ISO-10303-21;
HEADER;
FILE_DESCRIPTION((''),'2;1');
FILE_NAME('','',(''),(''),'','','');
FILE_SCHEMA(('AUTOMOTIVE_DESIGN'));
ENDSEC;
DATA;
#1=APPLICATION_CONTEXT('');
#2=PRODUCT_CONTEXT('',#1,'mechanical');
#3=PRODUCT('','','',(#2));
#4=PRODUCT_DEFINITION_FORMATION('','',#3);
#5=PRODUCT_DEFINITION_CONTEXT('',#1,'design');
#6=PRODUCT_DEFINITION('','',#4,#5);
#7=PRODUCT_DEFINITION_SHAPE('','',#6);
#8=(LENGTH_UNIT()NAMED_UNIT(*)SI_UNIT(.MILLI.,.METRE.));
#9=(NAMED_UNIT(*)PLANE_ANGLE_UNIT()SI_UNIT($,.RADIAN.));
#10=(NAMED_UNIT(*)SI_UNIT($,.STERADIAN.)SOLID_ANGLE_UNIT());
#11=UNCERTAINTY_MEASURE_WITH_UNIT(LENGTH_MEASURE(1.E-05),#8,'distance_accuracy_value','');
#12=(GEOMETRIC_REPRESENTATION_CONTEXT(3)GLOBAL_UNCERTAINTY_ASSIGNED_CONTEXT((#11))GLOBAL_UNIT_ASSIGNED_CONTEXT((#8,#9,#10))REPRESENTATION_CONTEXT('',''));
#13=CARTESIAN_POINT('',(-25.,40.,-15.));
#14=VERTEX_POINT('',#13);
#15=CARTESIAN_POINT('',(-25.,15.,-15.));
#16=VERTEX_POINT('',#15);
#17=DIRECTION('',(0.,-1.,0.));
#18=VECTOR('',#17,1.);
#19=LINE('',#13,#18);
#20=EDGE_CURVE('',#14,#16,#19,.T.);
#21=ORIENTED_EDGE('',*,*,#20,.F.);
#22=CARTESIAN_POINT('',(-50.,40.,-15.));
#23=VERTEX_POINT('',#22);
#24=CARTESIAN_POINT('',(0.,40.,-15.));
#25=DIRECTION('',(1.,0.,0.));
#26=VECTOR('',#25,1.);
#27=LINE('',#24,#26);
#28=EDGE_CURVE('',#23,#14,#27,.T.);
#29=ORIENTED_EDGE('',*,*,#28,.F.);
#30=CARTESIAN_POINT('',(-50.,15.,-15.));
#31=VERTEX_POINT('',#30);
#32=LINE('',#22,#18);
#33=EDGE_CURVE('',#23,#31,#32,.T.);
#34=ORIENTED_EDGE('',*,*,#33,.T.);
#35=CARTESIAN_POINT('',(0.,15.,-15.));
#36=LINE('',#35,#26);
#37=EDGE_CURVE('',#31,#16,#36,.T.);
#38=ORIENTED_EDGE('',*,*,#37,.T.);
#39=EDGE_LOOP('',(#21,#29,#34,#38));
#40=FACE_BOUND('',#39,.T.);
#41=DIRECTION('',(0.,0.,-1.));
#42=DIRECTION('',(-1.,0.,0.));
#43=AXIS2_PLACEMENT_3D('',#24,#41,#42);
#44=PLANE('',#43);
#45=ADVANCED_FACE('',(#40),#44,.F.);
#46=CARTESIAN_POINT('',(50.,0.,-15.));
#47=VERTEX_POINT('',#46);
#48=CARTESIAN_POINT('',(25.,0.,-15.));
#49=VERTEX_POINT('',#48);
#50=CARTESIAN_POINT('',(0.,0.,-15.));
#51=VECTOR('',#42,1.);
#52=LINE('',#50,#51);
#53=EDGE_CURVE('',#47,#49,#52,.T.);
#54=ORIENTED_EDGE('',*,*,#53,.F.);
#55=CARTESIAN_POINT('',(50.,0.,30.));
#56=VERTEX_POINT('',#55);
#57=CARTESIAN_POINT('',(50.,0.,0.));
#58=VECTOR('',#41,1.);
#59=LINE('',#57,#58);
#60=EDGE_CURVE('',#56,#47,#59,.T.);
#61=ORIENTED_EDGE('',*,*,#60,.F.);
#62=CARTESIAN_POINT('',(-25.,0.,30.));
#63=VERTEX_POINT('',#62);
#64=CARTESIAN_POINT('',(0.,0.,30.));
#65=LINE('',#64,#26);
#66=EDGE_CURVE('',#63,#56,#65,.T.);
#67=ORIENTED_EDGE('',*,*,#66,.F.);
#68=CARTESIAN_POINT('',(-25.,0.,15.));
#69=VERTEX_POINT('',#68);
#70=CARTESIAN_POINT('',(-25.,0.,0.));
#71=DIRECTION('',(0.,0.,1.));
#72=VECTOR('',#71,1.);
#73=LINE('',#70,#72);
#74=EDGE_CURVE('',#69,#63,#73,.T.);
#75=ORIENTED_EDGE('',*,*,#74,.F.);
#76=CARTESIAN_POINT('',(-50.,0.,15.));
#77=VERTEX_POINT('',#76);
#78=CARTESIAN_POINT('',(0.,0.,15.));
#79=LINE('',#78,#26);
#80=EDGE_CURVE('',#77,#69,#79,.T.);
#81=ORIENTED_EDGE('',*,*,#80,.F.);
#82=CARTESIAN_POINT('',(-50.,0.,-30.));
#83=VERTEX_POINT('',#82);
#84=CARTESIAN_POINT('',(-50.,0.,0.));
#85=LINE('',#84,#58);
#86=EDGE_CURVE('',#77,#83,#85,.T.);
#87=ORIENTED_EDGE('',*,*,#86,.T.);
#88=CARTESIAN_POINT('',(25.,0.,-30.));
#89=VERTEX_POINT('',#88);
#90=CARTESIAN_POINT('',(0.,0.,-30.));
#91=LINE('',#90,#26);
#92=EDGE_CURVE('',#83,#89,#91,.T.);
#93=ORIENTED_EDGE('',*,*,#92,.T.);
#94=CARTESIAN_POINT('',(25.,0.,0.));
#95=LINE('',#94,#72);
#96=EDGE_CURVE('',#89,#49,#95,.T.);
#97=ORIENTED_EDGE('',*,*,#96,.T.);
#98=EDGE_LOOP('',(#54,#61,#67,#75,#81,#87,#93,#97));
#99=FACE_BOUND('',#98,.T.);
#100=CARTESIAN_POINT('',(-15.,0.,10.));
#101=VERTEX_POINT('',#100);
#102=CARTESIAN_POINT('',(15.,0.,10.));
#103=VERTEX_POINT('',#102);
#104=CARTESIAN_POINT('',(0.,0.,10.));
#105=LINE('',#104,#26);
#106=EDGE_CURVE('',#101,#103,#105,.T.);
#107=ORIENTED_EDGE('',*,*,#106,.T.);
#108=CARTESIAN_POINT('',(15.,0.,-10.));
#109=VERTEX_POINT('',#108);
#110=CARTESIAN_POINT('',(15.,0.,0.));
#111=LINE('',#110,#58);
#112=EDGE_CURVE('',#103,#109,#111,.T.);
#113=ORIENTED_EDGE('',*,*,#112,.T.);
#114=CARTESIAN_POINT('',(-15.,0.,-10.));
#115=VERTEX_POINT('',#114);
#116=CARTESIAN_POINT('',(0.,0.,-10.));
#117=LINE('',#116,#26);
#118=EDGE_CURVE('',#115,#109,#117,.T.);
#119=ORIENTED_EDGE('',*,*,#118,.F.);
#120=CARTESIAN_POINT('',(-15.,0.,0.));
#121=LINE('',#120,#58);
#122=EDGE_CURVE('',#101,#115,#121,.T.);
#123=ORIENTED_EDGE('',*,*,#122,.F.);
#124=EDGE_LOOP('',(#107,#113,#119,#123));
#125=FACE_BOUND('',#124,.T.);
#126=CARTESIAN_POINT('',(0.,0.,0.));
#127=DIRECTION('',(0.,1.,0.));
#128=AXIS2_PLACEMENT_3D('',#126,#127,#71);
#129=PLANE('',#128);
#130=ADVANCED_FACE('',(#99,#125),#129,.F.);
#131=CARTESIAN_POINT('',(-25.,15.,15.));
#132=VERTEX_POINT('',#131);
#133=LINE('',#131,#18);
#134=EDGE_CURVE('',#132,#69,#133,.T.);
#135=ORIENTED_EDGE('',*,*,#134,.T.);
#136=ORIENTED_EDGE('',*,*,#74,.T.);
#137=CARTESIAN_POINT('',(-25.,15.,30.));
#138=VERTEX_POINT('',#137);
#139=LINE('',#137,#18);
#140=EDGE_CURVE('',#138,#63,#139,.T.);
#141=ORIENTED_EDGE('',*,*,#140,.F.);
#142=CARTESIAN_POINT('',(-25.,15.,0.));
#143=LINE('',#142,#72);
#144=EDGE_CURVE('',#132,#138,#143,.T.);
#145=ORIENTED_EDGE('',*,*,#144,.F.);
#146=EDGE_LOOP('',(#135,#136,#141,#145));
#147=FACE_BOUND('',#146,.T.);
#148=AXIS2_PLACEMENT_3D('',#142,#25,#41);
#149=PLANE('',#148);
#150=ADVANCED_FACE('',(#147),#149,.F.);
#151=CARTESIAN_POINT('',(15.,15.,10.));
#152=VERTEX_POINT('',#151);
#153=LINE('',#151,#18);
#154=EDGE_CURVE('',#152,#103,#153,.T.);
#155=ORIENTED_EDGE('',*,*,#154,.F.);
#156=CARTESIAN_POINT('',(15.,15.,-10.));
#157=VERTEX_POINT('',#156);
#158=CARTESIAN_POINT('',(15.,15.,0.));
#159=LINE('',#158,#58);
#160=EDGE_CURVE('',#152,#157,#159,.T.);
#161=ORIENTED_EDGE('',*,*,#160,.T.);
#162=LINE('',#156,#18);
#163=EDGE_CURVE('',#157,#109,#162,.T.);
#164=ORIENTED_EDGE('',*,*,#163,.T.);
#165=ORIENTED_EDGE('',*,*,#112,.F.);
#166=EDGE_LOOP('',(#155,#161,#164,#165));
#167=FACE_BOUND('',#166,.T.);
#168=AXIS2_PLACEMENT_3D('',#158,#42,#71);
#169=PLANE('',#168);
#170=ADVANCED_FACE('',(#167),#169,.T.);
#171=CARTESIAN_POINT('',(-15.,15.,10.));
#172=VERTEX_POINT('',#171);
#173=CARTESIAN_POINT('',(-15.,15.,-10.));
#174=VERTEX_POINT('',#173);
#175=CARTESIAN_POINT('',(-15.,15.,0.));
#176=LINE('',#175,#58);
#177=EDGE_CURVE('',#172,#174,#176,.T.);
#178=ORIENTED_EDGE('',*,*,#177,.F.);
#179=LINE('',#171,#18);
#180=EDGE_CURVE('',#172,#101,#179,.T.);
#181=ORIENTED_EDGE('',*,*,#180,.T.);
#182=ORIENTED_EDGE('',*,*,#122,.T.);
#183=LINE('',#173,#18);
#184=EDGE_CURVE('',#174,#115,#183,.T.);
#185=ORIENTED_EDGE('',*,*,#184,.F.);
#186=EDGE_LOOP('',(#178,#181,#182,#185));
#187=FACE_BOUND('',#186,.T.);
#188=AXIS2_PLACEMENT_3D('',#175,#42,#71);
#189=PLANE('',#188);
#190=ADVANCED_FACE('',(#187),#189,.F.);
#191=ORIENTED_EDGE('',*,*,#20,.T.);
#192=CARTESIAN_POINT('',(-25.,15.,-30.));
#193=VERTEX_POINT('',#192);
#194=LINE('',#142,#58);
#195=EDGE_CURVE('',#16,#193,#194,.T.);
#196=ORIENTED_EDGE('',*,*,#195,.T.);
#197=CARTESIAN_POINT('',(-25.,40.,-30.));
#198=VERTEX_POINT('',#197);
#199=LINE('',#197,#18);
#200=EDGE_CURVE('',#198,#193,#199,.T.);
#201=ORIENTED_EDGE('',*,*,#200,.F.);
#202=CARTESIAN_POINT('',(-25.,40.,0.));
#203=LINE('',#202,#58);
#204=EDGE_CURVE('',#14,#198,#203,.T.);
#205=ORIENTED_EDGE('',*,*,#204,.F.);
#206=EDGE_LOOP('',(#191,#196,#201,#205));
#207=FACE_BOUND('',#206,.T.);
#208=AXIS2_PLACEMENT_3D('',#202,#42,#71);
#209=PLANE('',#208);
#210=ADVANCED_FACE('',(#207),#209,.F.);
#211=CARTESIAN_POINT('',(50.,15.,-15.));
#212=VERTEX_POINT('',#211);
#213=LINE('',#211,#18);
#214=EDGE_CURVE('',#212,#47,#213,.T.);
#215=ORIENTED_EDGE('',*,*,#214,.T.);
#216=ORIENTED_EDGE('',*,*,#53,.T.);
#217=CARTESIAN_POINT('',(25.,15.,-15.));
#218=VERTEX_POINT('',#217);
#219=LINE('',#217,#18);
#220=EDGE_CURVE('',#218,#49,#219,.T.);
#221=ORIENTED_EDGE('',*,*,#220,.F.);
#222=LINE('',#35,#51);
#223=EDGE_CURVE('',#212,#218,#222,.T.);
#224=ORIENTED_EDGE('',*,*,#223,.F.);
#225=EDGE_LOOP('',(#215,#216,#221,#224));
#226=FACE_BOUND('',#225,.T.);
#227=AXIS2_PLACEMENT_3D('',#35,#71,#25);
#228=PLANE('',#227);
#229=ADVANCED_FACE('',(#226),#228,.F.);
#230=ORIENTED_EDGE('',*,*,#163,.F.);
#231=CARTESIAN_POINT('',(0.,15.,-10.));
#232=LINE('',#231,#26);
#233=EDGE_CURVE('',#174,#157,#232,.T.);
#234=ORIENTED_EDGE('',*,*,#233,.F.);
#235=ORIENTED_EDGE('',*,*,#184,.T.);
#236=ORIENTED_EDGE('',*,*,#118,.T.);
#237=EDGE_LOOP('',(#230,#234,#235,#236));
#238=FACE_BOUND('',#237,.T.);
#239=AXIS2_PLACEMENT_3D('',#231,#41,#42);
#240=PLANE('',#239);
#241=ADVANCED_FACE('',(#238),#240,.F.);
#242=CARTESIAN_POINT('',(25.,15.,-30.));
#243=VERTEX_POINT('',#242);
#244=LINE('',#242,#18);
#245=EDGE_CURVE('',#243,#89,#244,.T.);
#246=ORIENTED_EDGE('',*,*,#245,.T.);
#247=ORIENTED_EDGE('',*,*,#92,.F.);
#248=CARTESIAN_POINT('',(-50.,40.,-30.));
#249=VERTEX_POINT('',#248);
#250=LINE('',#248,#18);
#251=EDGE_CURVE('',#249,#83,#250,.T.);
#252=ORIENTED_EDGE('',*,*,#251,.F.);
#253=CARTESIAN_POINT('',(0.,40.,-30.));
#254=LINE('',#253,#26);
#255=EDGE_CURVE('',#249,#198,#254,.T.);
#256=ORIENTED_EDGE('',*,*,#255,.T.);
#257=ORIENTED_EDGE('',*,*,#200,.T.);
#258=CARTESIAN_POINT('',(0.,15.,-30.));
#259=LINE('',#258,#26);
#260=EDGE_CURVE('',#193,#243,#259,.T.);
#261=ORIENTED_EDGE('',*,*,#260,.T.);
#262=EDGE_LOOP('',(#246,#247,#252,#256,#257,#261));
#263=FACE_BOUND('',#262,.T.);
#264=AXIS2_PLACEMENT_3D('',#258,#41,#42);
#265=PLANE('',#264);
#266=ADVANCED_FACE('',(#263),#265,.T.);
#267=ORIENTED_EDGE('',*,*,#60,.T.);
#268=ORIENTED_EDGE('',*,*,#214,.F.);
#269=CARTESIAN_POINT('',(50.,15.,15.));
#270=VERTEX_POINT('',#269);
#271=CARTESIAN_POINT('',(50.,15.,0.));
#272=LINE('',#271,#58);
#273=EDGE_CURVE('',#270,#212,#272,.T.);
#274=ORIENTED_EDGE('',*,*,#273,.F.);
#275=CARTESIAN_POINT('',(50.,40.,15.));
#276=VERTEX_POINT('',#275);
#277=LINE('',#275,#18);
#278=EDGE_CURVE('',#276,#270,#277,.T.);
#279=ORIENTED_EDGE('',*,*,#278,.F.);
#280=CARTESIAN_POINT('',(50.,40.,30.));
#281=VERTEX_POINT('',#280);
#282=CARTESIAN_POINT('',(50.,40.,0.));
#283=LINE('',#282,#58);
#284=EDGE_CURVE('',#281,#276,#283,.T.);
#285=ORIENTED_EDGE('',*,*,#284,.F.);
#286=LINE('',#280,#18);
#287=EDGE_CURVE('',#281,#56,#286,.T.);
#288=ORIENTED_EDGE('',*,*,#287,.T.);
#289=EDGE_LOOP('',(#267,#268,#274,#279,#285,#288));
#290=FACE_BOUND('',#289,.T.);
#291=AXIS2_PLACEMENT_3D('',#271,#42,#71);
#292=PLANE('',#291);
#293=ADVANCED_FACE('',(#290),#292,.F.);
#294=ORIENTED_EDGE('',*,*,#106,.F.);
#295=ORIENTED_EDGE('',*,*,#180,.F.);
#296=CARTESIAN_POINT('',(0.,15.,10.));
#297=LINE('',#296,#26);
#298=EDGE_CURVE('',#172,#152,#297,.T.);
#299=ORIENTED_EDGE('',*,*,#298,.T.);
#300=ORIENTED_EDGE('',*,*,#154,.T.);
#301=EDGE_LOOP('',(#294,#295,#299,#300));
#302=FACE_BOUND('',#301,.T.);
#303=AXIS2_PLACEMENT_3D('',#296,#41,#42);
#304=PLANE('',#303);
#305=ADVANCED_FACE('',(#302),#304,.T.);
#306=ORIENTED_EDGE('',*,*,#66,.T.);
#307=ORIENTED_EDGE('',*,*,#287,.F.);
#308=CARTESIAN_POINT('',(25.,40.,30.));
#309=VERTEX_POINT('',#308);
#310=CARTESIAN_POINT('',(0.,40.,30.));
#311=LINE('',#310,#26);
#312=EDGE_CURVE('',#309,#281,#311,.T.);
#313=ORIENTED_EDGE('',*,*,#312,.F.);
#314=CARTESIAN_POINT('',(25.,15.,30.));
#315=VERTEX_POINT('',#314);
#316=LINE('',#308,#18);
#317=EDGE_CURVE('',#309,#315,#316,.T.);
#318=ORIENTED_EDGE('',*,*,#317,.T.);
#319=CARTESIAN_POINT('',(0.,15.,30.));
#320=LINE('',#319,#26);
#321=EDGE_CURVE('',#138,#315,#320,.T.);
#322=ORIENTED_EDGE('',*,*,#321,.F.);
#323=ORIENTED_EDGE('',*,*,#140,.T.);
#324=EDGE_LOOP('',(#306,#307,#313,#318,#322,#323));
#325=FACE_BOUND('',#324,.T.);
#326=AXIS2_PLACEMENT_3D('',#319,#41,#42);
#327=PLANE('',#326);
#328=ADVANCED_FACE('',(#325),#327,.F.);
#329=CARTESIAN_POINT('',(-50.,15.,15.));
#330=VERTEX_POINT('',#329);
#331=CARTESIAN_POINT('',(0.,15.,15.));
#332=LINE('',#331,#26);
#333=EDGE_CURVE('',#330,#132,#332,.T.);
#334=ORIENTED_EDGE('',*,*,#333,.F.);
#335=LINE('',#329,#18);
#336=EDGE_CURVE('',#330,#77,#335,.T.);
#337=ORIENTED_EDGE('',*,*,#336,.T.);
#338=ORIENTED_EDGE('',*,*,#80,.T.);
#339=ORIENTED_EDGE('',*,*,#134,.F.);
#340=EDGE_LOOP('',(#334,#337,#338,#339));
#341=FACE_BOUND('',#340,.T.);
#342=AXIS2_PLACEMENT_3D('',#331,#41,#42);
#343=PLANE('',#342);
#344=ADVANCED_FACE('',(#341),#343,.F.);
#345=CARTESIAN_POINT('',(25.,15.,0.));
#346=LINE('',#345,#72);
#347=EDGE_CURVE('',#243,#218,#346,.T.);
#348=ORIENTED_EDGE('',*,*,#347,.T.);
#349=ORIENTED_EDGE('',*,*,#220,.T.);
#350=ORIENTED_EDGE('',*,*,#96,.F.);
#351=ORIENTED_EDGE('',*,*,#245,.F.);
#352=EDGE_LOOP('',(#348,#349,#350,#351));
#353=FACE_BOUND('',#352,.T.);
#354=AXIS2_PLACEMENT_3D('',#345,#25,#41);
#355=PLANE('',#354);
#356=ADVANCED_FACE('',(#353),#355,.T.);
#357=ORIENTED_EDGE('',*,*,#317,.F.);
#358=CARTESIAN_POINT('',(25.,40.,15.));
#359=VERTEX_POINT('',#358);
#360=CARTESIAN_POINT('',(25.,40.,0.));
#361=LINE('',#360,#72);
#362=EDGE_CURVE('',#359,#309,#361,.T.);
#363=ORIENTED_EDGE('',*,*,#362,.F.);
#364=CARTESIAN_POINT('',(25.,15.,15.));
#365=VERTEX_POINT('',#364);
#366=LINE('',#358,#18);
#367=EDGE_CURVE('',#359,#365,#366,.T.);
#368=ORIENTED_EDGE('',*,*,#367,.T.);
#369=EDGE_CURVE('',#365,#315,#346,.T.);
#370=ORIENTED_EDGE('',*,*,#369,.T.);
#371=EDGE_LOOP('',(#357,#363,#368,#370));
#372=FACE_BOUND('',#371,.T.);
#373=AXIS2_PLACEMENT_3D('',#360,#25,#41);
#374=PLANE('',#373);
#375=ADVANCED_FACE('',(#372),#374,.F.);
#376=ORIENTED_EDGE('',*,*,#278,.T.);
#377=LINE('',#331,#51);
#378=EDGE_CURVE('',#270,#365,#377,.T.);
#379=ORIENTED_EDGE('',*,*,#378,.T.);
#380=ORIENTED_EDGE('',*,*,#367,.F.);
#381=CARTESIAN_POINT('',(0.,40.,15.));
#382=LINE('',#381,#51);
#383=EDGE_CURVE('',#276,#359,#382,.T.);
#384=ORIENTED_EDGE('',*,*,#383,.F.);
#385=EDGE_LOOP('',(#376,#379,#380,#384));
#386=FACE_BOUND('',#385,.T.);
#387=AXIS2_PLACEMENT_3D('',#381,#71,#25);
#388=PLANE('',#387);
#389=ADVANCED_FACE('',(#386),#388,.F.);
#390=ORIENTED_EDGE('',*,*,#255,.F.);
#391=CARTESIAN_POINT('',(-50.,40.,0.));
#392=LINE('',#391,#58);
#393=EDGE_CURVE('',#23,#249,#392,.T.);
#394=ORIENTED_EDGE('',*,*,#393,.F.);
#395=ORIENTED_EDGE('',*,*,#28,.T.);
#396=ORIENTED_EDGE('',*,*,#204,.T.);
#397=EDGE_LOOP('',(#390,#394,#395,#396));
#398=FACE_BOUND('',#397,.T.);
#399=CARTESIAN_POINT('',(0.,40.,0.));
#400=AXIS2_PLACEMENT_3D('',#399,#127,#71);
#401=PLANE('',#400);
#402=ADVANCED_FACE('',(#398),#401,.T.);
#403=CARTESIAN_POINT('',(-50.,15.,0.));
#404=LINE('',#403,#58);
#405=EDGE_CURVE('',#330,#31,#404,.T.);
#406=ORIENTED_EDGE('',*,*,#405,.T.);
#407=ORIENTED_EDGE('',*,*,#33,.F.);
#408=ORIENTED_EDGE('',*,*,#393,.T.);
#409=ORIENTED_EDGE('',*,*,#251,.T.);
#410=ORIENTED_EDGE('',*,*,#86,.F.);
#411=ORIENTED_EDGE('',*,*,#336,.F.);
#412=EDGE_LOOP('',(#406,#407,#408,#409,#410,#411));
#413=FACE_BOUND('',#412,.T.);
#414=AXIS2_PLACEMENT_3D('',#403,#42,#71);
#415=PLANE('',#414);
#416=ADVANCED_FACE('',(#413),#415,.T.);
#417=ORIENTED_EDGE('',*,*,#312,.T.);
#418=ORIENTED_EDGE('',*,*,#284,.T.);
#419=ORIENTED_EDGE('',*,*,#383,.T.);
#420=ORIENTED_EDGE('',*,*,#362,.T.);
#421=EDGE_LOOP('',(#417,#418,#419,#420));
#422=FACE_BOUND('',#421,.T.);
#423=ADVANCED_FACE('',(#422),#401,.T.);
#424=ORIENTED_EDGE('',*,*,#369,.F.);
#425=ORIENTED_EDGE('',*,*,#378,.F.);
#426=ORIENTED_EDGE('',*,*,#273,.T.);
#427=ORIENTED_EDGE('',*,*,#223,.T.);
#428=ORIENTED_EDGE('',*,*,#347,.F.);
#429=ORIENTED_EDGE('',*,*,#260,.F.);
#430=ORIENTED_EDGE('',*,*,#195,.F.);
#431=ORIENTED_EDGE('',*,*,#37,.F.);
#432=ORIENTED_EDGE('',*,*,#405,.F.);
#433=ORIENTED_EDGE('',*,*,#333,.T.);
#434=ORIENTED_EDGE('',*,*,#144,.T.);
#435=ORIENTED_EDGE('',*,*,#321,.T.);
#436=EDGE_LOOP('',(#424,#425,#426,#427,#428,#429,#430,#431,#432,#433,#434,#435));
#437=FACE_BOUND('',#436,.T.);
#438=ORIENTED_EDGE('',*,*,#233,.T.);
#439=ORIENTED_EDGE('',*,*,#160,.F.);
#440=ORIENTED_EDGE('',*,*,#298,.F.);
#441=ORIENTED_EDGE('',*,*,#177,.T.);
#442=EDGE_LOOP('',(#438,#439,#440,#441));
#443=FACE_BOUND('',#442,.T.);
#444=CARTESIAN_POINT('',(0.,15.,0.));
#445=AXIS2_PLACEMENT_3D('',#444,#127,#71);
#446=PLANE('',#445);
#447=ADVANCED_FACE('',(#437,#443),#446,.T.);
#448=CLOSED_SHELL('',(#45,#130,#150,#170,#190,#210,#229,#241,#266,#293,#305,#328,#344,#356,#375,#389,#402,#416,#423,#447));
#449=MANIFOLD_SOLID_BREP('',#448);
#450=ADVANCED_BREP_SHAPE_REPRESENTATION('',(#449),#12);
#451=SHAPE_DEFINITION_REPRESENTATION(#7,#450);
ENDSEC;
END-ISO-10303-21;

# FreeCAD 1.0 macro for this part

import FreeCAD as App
import Part
import Sketcher

V = App.Vector

doc = App.newDocument("Part")
body = doc.addObject("PartDesign::Body", "Body")

sketch1 = doc.addObject("Sketcher::SketchObject", "Sketch")
body.addObject(sketch1)
sketch1.AttachmentSupport = (doc.XZ_Plane, [""])
sketch1.MapMode = "FlatFace"
sketch1.addGeometry([
    Part.LineSegment(V(-25, 15, 0), V(-25, 30, 0)),
    Part.LineSegment(V(-25, 30, 0), V(25, 30, 0)),
    Part.LineSegment(V(25, 30, 0), V(25, 15, 0)),
    Part.LineSegment(V(25, 15, 0), V(50, 15, 0)),
    Part.LineSegment(V(50, 15, 0), V(50, -15, 0)),
    Part.LineSegment(V(50, -15, 0), V(25, -15, 0)),
    Part.LineSegment(V(25, -15, 0), V(25, -30, 0)),
    Part.LineSegment(V(25, -30, 0), V(-25, -30, 0)),
    Part.LineSegment(V(-25, -30, 0), V(-25, -15, 0)),
    Part.LineSegment(V(-25, -15, 0), V(-50, -15, 0)),
    Part.LineSegment(V(-50, -15, 0), V(-50, 15, 0)),
    Part.LineSegment(V(-50, 15, 0), V(-25, 15, 0)),
    Part.LineSegment(V(15, 10, 0), V(-15, 10, 0)),
    Part.LineSegment(V(-15, 10, 0), V(-15, -10, 0)),
    Part.LineSegment(V(-15, -10, 0), V(15, -10, 0)),
    Part.LineSegment(V(15, -10, 0), V(15, 10, 0)),
], False)
sketch1.addConstraint([
    Sketcher.Constraint("Coincident", 0, 2, 1, 1),
    Sketcher.Constraint("Coincident", 1, 2, 2, 1),
    Sketcher.Constraint("Coincident", 2, 2, 3, 1),
    Sketcher.Constraint("Coincident", 3, 2, 4, 1),
    Sketcher.Constraint("Coincident", 4, 2, 5, 1),
    Sketcher.Constraint("Coincident", 5, 2, 6, 1),
    Sketcher.Constraint("Coincident", 6, 2, 7, 1),
    Sketcher.Constraint("Coincident", 7, 2, 8, 1),
    Sketcher.Constraint("Coincident", 8, 2, 9, 1),
    Sketcher.Constraint("Coincident", 9, 2, 10, 1),
    Sketcher.Constraint("Coincident", 10, 2, 11, 1),
    Sketcher.Constraint("Coincident", 11, 2, 0, 1),
    Sketcher.Constraint("Coincident", 12, 2, 13, 1),
    Sketcher.Constraint("Coincident", 13, 2, 14, 1),
    Sketcher.Constraint("Coincident", 14, 2, 15, 1),
    Sketcher.Constraint("Coincident", 15, 2, 12, 1),
    Sketcher.Constraint("Vertical", 0),
    Sketcher.Constraint("Horizontal", 1),
    Sketcher.Constraint("Vertical", 2),
    Sketcher.Constraint("Horizontal", 3),
    Sketcher.Constraint("Vertical", 4),
    Sketcher.Constraint("Horizontal", 5),
    Sketcher.Constraint("Vertical", 6),
    Sketcher.Constraint("Horizontal", 7),
    Sketcher.Constraint("Vertical", 8),
    Sketcher.Constraint("Horizontal", 9),
    Sketcher.Constraint("Vertical", 10),
    Sketcher.Constraint("Horizontal", 11),
    Sketcher.Constraint("Horizontal", 12),
    Sketcher.Constraint("Vertical", 13),
    Sketcher.Constraint("Horizontal", 14),
    Sketcher.Constraint("Vertical", 15),
    Sketcher.Constraint("Symmetric", 0, 2, 6, 2, -1, 1),
    Sketcher.Constraint("Symmetric", 2, 2, 8, 2, -1, 1),
    Sketcher.Constraint("Symmetric", 4, 2, 10, 2, -1, 1),
    Sketcher.Constraint("Symmetric", 12, 2, 14, 2, -1, 1),
    Sketcher.Constraint("Symmetric", 5, 2, 8, 2, -2),
    Sketcher.Constraint("Equal", 14, 4),
    Sketcher.Constraint("DistanceX", 1, 1, 1, 2, 50.0),
    Sketcher.Constraint("DistanceX", 3, 1, 3, 2, 25.0),
    Sketcher.Constraint("DistanceX", 12, 2, 12, 1, 30.0),
    Sketcher.Constraint("DistanceY", 0, 1, 0, 2, 15.0),
    Sketcher.Constraint("DistanceY", 13, 2, 13, 1, 20.0),
])
pad1 = doc.addObject("PartDesign::Pad", "Pad")
body.addObject(pad1)
pad1.Profile = sketch1
pad1.Length = 15
pad1.Reversed = True

sketch2 = doc.addObject("Sketcher::SketchObject", "Sketch001")
body.addObject(sketch2)
sketch2.AttachmentSupport = (doc.XZ_Plane, [""])
sketch2.MapMode = "FlatFace"
sketch2.addGeometry([
    Part.LineSegment(V(-50, -30, 0), V(-50, -15, 0)),
    Part.LineSegment(V(-50, -15, 0), V(-25, -15, 0)),
    Part.LineSegment(V(-25, -15, 0), V(-25, -30, 0)),
    Part.LineSegment(V(-25, -30, 0), V(-50, -30, 0)),
    Part.LineSegment(V(25, 15, 0), V(25, 30, 0)),
    Part.LineSegment(V(25, 30, 0), V(50, 30, 0)),
    Part.LineSegment(V(50, 30, 0), V(50, 15, 0)),
    Part.LineSegment(V(50, 15, 0), V(25, 15, 0)),
], False)
sketch2.addConstraint([
    Sketcher.Constraint("Coincident", 0, 2, 1, 1),
    Sketcher.Constraint("Coincident", 1, 2, 2, 1),
    Sketcher.Constraint("Coincident", 2, 2, 3, 1),
    Sketcher.Constraint("Coincident", 3, 2, 0, 1),
    Sketcher.Constraint("Coincident", 4, 2, 5, 1),
    Sketcher.Constraint("Coincident", 5, 2, 6, 1),
    Sketcher.Constraint("Coincident", 6, 2, 7, 1),
    Sketcher.Constraint("Coincident", 7, 2, 4, 1),
    Sketcher.Constraint("Vertical", 0),
    Sketcher.Constraint("Horizontal", 1),
    Sketcher.Constraint("Vertical", 2),
    Sketcher.Constraint("Horizontal", 3),
    Sketcher.Constraint("Vertical", 4),
    Sketcher.Constraint("Horizontal", 5),
    Sketcher.Constraint("Vertical", 6),
    Sketcher.Constraint("Horizontal", 7),
    Sketcher.Constraint("Symmetric", 2, 2, 4, 2, -1, 1),
    Sketcher.Constraint("Symmetric", 0, 2, 6, 2, -1, 1),
    Sketcher.Constraint("DistanceX", 1, 1, 1, 2, 25.0),
    Sketcher.Constraint("DistanceY", 0, 1, 0, 2, 15.0),
    Sketcher.Constraint("DistanceX", 0, 2, -1, 1, 50.0),
    Sketcher.Constraint("DistanceY", 0, 2, -1, 1, 15.0),
])
pad2 = doc.addObject("PartDesign::Pad", "Pad001")
body.addObject(pad2)
pad2.Profile = sketch2
pad2.Length = 40
pad2.Reversed = True

doc.recompute()
